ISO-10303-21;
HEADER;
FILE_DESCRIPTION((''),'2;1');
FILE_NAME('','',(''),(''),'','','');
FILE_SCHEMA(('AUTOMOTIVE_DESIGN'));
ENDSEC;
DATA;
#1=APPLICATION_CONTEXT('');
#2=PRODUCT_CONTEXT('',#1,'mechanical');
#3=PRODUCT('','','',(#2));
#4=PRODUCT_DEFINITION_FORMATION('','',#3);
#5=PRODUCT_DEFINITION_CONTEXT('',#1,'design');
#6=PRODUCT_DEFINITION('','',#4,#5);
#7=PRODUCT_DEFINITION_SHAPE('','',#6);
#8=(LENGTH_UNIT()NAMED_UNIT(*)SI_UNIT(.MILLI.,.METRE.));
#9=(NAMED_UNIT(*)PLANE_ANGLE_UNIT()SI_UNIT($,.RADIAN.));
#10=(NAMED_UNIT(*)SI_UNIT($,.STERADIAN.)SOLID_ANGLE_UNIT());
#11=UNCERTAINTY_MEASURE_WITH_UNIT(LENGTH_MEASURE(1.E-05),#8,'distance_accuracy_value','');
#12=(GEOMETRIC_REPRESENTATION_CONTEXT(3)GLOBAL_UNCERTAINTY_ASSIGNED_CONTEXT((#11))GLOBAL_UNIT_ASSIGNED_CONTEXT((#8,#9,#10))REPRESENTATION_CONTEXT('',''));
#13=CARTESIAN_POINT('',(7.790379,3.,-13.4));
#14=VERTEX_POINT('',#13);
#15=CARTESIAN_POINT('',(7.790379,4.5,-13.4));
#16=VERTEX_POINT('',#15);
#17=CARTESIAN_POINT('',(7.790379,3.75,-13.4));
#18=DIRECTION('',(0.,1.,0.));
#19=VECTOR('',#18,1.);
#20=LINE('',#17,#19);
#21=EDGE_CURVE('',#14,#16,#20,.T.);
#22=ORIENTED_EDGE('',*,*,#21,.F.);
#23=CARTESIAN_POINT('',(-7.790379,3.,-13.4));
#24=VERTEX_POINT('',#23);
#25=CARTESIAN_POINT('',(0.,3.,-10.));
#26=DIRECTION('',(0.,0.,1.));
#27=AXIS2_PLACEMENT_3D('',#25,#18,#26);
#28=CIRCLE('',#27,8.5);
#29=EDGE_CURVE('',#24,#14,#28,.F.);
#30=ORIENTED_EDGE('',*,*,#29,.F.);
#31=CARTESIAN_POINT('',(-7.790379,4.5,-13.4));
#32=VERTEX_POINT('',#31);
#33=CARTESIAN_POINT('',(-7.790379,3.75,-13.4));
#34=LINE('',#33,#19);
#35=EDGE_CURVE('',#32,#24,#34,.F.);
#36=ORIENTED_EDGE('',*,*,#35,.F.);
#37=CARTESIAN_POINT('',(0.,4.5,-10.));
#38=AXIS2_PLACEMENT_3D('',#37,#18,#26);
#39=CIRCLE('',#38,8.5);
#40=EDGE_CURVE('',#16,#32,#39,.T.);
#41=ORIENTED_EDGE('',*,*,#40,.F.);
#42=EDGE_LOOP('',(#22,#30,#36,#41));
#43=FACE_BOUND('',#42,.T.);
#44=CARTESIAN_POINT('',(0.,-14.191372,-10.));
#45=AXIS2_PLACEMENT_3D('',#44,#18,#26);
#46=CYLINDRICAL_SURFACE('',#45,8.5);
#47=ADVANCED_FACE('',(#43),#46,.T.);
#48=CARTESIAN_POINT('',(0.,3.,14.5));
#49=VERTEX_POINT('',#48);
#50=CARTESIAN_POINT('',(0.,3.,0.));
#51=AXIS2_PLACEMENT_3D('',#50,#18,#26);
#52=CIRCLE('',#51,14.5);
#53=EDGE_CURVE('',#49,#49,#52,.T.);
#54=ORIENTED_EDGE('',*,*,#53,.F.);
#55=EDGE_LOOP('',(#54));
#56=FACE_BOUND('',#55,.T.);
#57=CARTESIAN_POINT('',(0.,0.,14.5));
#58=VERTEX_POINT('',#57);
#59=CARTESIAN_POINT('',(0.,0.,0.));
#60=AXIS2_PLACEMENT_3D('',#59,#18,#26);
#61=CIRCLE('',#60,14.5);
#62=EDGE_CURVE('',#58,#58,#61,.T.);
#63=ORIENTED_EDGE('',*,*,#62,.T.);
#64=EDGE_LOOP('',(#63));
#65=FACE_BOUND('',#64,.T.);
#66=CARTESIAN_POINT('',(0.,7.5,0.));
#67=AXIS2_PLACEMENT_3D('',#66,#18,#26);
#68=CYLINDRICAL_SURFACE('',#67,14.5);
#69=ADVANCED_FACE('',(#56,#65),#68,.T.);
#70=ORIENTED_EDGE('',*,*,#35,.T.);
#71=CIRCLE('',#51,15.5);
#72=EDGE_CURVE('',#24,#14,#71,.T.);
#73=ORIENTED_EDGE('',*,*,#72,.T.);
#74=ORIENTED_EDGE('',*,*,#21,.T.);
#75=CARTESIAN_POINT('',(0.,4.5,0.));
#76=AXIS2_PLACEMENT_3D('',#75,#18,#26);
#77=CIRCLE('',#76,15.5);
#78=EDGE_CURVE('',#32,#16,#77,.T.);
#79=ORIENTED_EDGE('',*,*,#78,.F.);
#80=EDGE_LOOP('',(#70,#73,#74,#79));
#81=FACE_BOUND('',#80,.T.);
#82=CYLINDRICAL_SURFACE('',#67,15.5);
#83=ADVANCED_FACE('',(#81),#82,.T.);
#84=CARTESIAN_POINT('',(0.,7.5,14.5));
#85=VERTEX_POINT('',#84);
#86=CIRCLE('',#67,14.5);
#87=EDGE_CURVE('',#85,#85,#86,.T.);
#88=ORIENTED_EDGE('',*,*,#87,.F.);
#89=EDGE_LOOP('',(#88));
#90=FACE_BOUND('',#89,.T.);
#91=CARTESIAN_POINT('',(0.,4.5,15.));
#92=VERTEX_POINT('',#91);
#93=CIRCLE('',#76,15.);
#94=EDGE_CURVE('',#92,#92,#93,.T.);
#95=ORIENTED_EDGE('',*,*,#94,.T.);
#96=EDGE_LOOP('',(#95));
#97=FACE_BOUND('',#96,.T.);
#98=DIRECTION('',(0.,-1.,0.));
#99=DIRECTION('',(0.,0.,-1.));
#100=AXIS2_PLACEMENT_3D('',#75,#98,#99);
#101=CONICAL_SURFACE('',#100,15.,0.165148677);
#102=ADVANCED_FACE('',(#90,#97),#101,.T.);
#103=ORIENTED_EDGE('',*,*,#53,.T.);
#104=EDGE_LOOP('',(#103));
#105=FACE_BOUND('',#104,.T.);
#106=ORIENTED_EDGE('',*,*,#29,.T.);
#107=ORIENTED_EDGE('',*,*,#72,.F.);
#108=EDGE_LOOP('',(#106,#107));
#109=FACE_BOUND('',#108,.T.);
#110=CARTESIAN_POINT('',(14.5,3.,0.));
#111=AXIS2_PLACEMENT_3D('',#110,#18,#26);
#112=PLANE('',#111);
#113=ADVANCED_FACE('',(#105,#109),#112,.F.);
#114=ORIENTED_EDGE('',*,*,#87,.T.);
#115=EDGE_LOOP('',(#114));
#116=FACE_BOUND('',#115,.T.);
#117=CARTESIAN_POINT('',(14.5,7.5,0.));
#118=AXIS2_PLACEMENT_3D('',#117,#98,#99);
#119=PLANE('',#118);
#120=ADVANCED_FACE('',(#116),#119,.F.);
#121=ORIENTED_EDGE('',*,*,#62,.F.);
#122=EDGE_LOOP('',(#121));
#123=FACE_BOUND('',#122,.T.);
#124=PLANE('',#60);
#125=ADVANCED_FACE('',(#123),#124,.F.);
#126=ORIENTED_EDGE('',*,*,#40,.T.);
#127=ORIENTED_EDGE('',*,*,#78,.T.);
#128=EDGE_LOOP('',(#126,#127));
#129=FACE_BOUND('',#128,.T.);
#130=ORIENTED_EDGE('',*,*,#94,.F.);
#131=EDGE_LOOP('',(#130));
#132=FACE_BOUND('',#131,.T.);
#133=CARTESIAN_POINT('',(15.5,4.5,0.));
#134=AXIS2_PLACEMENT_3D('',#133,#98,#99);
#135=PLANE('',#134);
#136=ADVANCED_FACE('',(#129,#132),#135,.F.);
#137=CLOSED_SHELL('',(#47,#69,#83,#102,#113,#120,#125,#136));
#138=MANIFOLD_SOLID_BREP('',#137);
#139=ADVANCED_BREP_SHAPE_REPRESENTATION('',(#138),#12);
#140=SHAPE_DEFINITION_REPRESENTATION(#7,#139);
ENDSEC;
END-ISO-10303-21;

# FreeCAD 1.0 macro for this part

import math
import FreeCAD as App
import Part
import Sketcher
Q = App.Units.Quantity


def add_polygon(sketch, points):
    """Adds a closed chain of lines whose ends are joined by coincident constraints."""
    first, n = sketch.GeometryCount, len(points)
    for a, b in zip(points, points[1:] + points[:1]):
        sketch.addGeometry(Part.LineSegment(App.Vector(*a, 0), App.Vector(*b, 0)), False)
    for i in range(n):
        sketch.addConstraint(Sketcher.Constraint("Coincident", first + i, 2, first + (i + 1) % n, 1))

doc = App.newDocument("Part")
params = doc.addObject("Spreadsheet::Sheet", "Params")
for row, (alias, value) in enumerate([
    ("sketch1_width", "1 mm"),
    ("sketch1_height", "3 mm"),
    ("sketch1_width2", "14.5 mm"),
    ("sketch1_width3", "0.5 mm"),
    ("sketch1_height2", "1.5 mm"),
    ("revolution_angle", "360 deg"),
    ("sketch2_radius", "15 mm"),
    ("sketch2_radius2", "8.5 mm"),
    ("pad1_length", "1.5 mm"),
], start=1):
    params.set(f"A{row}", alias)
    params.set(f"B{row}", "=" + value)
    params.setAlias(f"B{row}", alias)

body = doc.addObject("PartDesign::Body", "Body")

sketch1 = body.newObject("Sketcher::SketchObject", "Sketch")
sketch1.AttachmentSupport = (doc.getObject("XY_Plane"), [""])
sketch1.MapMode = "FlatFace"
add_polygon(sketch1, [(0, 0), (14.5, 0), (14.5, 3), (15.5, 3), (15.5, 4.5), (15, 4.5), (14.5, 7.5), (0, 7.5)])
sketch1.addConstraint([
    Sketcher.Constraint("Horizontal", 0),
    Sketcher.Constraint("Vertical", 1),
    Sketcher.Constraint("Horizontal", 2),
    Sketcher.Constraint("Vertical", 3),
    Sketcher.Constraint("Horizontal", 4),
    Sketcher.Constraint("Horizontal", 6),
    Sketcher.Constraint("Vertical", 7),
    Sketcher.Constraint("Coincident", 7, 2, -1, 1),
    Sketcher.Constraint("Vertical", 1, 2, 5, 2),
    Sketcher.Constraint("DistanceX", 2, 1, 2, 2, Q("1 mm")),
    Sketcher.Constraint("DistanceY", 1, 1, 1, 2, Q("3 mm")),
    Sketcher.Constraint("DistanceX", 0, 1, 0, 2, Q("14.5 mm")),
    Sketcher.Constraint("DistanceX", 4, 2, 4, 1, Q("0.5 mm")),
    Sketcher.Constraint("DistanceY", 3, 1, 3, 2, Q("1.5 mm")),
    Sketcher.Constraint("DistanceY", 7, 2, 7, 1, Q("7.5 mm")),
])
sketch1.setExpression("Constraints[17]", "Params.sketch1_width")
sketch1.setExpression("Constraints[18]", "Params.sketch1_height")
sketch1.setExpression("Constraints[19]", "Params.sketch1_width2")
sketch1.setExpression("Constraints[20]", "Params.sketch1_width3")
sketch1.setExpression("Constraints[21]", "Params.sketch1_height2")
revolution = body.newObject("PartDesign::Revolution", "Revolution")
revolution.Profile = sketch1
revolution.ReferenceAxis = (sketch1, ["V_Axis"])
revolution.setExpression("Angle", "Params.revolution_angle")

sketch2 = body.newObject("Sketcher::SketchObject", "Sketch001")
sketch2.AttachmentSupport = (doc.getObject("XZ_Plane"), [""])
sketch2.MapMode = "FlatFace"
sketch2.AttachmentOffset = App.Placement(App.Vector(0, 0, -4.5), App.Rotation())
sketch2.addGeometry([
    Part.ArcOfCircle(Part.Circle(App.Vector(0, -10, 0), App.Vector(0, 0, 1), 9), math.radians(-162), math.radians(-18)),
    Part.ArcOfCircle(Part.Circle(App.Vector(0, 0, 0), App.Vector(0, 0, 1), 15), math.radians(-123), math.radians(-57)),
], False)
sketch2.addConstraint([
    Sketcher.Constraint("Coincident", 0, 1, 1, 1),
    Sketcher.Constraint("Coincident", 1, 2, 0, 2),
    Sketcher.Constraint("Coincident", 1, 3, -1, 1),
    Sketcher.Constraint("PointOnObject", 0, 3, -2),
    Sketcher.Constraint("Radius", 1, Q("15 mm")),
    Sketcher.Constraint("Radius", 0, Q("8.5 mm")),
    Sketcher.Constraint("DistanceY", 0, 3, -1, 1, Q("10 mm")),
])
sketch2.setExpression("Constraints[4]", "Params.sketch2_radius")
sketch2.setExpression("Constraints[5]", "Params.sketch2_radius2")
pad1 = body.newObject("PartDesign::Pad", "Pad")
pad1.Profile = sketch2
pad1.setExpression("Length", "Params.pad1_length")

doc.recompute()
